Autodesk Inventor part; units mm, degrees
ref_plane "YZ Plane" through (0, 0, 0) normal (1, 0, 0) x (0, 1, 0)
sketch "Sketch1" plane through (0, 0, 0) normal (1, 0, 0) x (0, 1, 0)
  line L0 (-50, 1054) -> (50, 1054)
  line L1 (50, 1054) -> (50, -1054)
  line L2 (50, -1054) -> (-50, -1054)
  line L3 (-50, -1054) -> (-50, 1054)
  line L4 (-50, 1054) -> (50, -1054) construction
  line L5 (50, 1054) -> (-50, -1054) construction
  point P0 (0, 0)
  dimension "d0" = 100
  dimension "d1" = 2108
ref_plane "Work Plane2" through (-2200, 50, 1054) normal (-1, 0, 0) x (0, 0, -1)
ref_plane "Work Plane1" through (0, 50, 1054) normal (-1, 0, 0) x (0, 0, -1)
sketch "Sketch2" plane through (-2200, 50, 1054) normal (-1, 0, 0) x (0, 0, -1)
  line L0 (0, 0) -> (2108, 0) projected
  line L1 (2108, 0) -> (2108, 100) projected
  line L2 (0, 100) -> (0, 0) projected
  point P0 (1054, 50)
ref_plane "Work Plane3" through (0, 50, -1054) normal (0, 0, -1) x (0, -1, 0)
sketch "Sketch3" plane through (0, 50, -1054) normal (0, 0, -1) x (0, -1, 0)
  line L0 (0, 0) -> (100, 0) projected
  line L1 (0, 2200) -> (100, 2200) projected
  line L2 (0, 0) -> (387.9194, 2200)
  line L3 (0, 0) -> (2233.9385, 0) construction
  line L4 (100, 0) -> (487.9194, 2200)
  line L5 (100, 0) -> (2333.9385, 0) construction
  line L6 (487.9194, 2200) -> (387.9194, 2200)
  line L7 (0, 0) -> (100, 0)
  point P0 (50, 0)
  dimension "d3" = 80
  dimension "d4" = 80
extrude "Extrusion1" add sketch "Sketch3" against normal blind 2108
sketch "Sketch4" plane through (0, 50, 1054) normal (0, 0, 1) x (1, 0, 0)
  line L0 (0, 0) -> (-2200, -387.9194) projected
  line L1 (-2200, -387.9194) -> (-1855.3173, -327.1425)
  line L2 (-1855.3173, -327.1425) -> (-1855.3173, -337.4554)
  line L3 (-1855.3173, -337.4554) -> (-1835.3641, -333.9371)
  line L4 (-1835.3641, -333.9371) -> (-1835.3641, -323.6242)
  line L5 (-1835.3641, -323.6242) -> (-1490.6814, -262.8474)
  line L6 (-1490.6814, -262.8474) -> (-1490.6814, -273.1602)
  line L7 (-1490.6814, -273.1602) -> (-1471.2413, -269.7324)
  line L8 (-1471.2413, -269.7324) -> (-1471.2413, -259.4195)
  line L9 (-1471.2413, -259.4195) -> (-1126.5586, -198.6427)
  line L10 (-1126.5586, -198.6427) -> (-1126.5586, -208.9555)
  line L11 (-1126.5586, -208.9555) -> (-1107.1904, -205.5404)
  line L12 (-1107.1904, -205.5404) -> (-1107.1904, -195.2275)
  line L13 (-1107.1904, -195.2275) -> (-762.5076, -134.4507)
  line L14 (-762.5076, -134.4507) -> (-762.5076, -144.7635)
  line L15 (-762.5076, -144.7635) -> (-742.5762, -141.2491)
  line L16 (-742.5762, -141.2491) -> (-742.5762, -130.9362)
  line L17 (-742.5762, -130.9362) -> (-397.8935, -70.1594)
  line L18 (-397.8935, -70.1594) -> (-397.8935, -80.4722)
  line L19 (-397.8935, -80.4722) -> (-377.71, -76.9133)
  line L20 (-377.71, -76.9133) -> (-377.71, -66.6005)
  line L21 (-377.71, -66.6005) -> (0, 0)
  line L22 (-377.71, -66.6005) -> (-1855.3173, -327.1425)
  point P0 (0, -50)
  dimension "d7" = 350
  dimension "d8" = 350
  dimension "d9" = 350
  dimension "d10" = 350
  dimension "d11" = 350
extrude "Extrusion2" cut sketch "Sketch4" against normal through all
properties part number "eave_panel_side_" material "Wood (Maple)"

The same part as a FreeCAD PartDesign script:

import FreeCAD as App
import Part
import Sketcher
from FreeCAD import Vector
Q = App.Units.Quantity


def add_polygon(sketch, points):
    """Adds a closed chain of lines whose ends are joined by coincident constraints."""
    first, n = sketch.GeometryCount, len(points)
    for a, b in zip(points, points[1:] + points[:1]):
        sketch.addGeometry(Part.LineSegment(App.Vector(*a, 0), App.Vector(*b, 0)), False)
    for i in range(n):
        sketch.addConstraint(Sketcher.Constraint("Coincident", first + i, 2, first + (i + 1) % n, 1))

doc = App.newDocument("Part")
body = doc.addObject("PartDesign::Body", "Body")

# Sketch on XY plane
sketch1 = doc.addObject("Sketcher::SketchObject", "Sketch")
body.addObject(sketch1)
sketch1.AttachmentSupport = (doc.XY_Plane, [""])
sketch1.MapMode = "FlatFace"
sketch1.AttachmentOffset = App.Placement(Vector(0, 0, -1054), App.Rotation())
add_polygon(sketch1, [(-2200, -338), (0, 50), (0, -50), (-2200, -438)])  # lines 0-3
sketch1.addConstraint(Sketcher.Constraint("Vertical", 1))
sketch1.addConstraint(Sketcher.Constraint("Vertical", 3))
sketch1.addConstraint(Sketcher.Constraint("Symmetric", 0, 2, 1, 2, -1, 1))
sketch1.addConstraint(Sketcher.Constraint("Parallel", 0, 2))
sketch1.addConstraint(Sketcher.Constraint("DistanceY", 1, 2, 1, 1, Q("100 mm")))
sketch1.addConstraint(Sketcher.Constraint("Angle", 0, Q("10 deg")))
sketch1.addConstraint(Sketcher.Constraint("DistanceX", 2, 2, -1, 1, Q("2200 mm")))
pad1 = doc.addObject("PartDesign::Pad", "Pad")
body.addObject(pad1)
pad1.Profile = sketch1
pad1.Length = 2108

# Sketch on XY plane
sketch2 = doc.addObject("Sketcher::SketchObject", "Sketch001")
body.addObject(sketch2)
sketch2.AttachmentSupport = (doc.XY_Plane, [""])
sketch2.MapMode = "FlatFace"
sketch2.AttachmentOffset = App.Placement(Vector(0, 0, 1054), App.Rotation())
add_polygon(sketch2, [(-378, -27), (-378, -17), (-398, -20), (-398, -30)])  # lines 0-3
add_polygon(sketch2, [(-1835, -284), (-1835, -274), (-1855, -277), (-1855, -287)])  # lines 4-7
add_polygon(sketch2, [(-1471, -220), (-1471, -209), (-1491, -213), (-1491, -223)])  # lines 8-11
add_polygon(sketch2, [(-1107, -156), (-1107, -145), (-1127, -149), (-1127, -159)])  # lines 12-15
add_polygon(sketch2, [(-743, -91), (-743, -81), (-763, -84), (-763, -95)])  # lines 16-19
sketch2.addConstraint(Sketcher.Constraint("Vertical", 0))
sketch2.addConstraint(Sketcher.Constraint("Vertical", 2))
sketch2.addConstraint(Sketcher.Constraint("Vertical", 4))
sketch2.addConstraint(Sketcher.Constraint("Vertical", 6))
sketch2.addConstraint(Sketcher.Constraint("Vertical", 8))
sketch2.addConstraint(Sketcher.Constraint("Vertical", 10))
sketch2.addConstraint(Sketcher.Constraint("Vertical", 12))
sketch2.addConstraint(Sketcher.Constraint("Vertical", 14))
sketch2.addConstraint(Sketcher.Constraint("Vertical", 16))
sketch2.addConstraint(Sketcher.Constraint("Vertical", 18))
sketch2.addConstraint(Sketcher.Constraint("Parallel", 1, 3))
sketch2.addConstraint(Sketcher.Constraint("Parallel", 3, 5))
sketch2.addConstraint(Sketcher.Constraint("Parallel", 5, 7))
sketch2.addConstraint(Sketcher.Constraint("Parallel", 7, 9))
sketch2.addConstraint(Sketcher.Constraint("Parallel", 9, 11))
sketch2.addConstraint(Sketcher.Constraint("Parallel", 11, 13))
sketch2.addConstraint(Sketcher.Constraint("Parallel", 13, 15))
sketch2.addConstraint(Sketcher.Constraint("Parallel", 15, 17))
sketch2.addConstraint(Sketcher.Constraint("Parallel", 17, 19))
sketch2.addConstraint(Sketcher.Constraint("Equal", 2, 4))
sketch2.addConstraint(Sketcher.Constraint("Equal", 6, 8))
sketch2.addConstraint(Sketcher.Constraint("Equal", 10, 12))
sketch2.addConstraint(Sketcher.Constraint("Equal", 14, 16))
sketch2.addConstraint(Sketcher.Constraint("Angle", 1, Q("-170 deg")))
sketch2.addConstraint(Sketcher.Constraint("Distance", 9, Q("19.74 mm")))
sketch2.addConstraint(Sketcher.Constraint("DistanceY", 4, 1, 4, 2, Q("10.313 mm")))
sketch2.addConstraint(Sketcher.Constraint("DistanceX", 0, 2, -1, 1, Q("377.71 mm")))
sketch2.addConstraint(Sketcher.Constraint("Distance", 5, Q("20.261 mm")))
sketch2.addConstraint(Sketcher.Constraint("Distance", 13, Q("19.667 mm")))
sketch2.addConstraint(Sketcher.Constraint("Distance", 17, Q("20.239 mm")))
sketch2.addConstraint(Sketcher.Constraint("DistanceX", 4, 2, -1, 1, Q("1835.364 mm")))
sketch2.addConstraint(Sketcher.Constraint("DistanceY", 7, 2, -1, 1, Q("283.937 mm")))
sketch2.addConstraint(Sketcher.Constraint("DistanceY", 19, 2, -1, 1, Q("91.249 mm")))
sketch2.addConstraint(Sketcher.Constraint("DistanceY", 2, 2, 3, 2, Q("3.559 mm")))
sketch2.addConstraint(Sketcher.Constraint("DistanceY", 4, 2, 2, 2, Q("243.152 mm")))
sketch2.addConstraint(Sketcher.Constraint("DistanceX", 5, 2, 8, 2, Q("384.076 mm")))
sketch2.addConstraint(Sketcher.Constraint("DistanceY", 5, 2, 8, 2, Q("67.723 mm")))
sketch2.addConstraint(Sketcher.Constraint("DistanceX", 8, 2, 12, 2, Q("364.051 mm")))
sketch2.addConstraint(Sketcher.Constraint("DistanceY", 8, 2, 12, 2, Q("64.192 mm")))
sketch2.addConstraint(Sketcher.Constraint("DistanceX", 17, 2, 2, 2, Q("364.614 mm")))
pocket1 = doc.addObject("PartDesign::Pocket", "Pocket")
body.addObject(pocket1)
pocket1.Profile = sketch2
pocket1.Type = "ThroughAll"

doc.recompute()
